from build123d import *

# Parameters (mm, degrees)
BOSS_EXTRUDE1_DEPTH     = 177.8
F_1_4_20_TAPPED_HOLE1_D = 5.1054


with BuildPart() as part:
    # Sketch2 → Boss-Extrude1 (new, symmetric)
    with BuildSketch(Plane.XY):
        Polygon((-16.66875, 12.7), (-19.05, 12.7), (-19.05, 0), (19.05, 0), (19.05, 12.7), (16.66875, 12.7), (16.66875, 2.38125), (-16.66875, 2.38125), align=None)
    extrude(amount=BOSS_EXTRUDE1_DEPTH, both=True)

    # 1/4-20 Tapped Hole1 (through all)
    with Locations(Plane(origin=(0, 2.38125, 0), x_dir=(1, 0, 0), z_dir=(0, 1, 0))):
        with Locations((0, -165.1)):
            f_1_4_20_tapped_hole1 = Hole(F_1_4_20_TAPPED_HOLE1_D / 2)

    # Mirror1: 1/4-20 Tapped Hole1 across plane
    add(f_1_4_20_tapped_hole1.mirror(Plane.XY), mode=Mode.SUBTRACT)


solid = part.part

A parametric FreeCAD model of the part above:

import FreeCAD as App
import Part
import Sketcher
from FreeCAD import Vector
Q = App.Units.Quantity

doc = App.newDocument("Part")
params = doc.addObject("Spreadsheet::Sheet", "Params")
for row, (alias, value) in enumerate([
    ("sketch1_width", "1.5 in"),
    ("sketch1_height", "0.5 in"),
    ("sketch1_width2", "0.09375 in"),
    ("sketch1_height2", "0.40625 in"),
    ("pad1_length", "14 in"),
    ("sketch2_diameter", "0.201 in"),
    ("hole_diameter", "0.201 in"),
], start=1):
    params.set(f"A{row}", alias)
    params.set(f"B{row}", "=" + value)
    params.setAlias(f"B{row}", alias)

body = doc.addObject("PartDesign::Body", "Body")

sketch1 = body.newObject("Sketcher::SketchObject", "Sketch")
sketch1.AttachmentSupport = (doc.getObject("XY_Plane"), [""])
sketch1.MapMode = "FlatFace"
sketch1.addGeometry([
    Part.LineSegment(Vector(-16.7, 12.7, 0), Vector(-19.1, 12.7, 0)),
    Part.LineSegment(Vector(-19.1, 12.7, 0), Vector(-19.1, 0, 0)),
    Part.LineSegment(Vector(-19.1, 0, 0), Vector(19.1, 0, 0)),
    Part.LineSegment(Vector(19.1, 0, 0), Vector(19.1, 12.7, 0)),
    Part.LineSegment(Vector(19.1, 12.7, 0), Vector(16.7, 12.7, 0)),
    Part.LineSegment(Vector(16.7, 12.7, 0), Vector(16.7, 2.4, 0)),
    Part.LineSegment(Vector(16.7, 2.4, 0), Vector(-16.7, 2.4, 0)),
    Part.LineSegment(Vector(-16.7, 2.4, 0), Vector(-16.7, 12.7, 0)),
], False)
sketch1.addConstraint([
    Sketcher.Constraint("Coincident", 0, 2, 1, 1),
    Sketcher.Constraint("Coincident", 1, 2, 2, 1),
    Sketcher.Constraint("Coincident", 2, 2, 3, 1),
    Sketcher.Constraint("Coincident", 3, 2, 4, 1),
    Sketcher.Constraint("Coincident", 4, 2, 5, 1),
    Sketcher.Constraint("Coincident", 5, 2, 6, 1),
    Sketcher.Constraint("Coincident", 6, 2, 7, 1),
    Sketcher.Constraint("Coincident", 7, 2, 0, 1),
    Sketcher.Constraint("Horizontal", 0),
    Sketcher.Constraint("Vertical", 1),
    Sketcher.Constraint("Horizontal", 2),
    Sketcher.Constraint("Vertical", 3),
    Sketcher.Constraint("Horizontal", 4),
    Sketcher.Constraint("Vertical", 5),
    Sketcher.Constraint("Horizontal", 6),
    Sketcher.Constraint("Vertical", 7),
    Sketcher.Constraint("Symmetric", 1, 2, 2, 2, -1, 1),
    Sketcher.Constraint("Symmetric", 4, 2, 7, 2, -2),
    Sketcher.Constraint("DistanceX", 2, 1, 2, 2, Q("1.5 in")),
    Sketcher.Constraint("DistanceY", 1, 2, 1, 1, Q("0.5 in")),
    Sketcher.Constraint("DistanceX", 0, 2, 0, 1, Q("0.09375 in")),
    Sketcher.Constraint("DistanceY", 5, 2, 5, 1, Q("0.40625 in")),
])
sketch1.setExpression("Constraints[18]", "Params.sketch1_width")
sketch1.setExpression("Constraints[19]", "Params.sketch1_height")
sketch1.setExpression("Constraints[20]", "Params.sketch1_width2")
sketch1.setExpression("Constraints[21]", "Params.sketch1_height2")
pad1 = body.newObject("PartDesign::Pad", "Pad")
pad1.Profile = sketch1
pad1.setExpression("Length", "Params.pad1_length")
pad1.Midplane = True

sketch2 = body.newObject("Sketcher::SketchObject", "Sketch001")
sketch2.AttachmentSupport = (doc.getObject("XZ_Plane"), [""])
sketch2.MapMode = "FlatFace"
sketch2.AttachmentOffset = App.Placement(Vector(0, 0, -0.09375 * 25.4), App.Rotation())
sketch2.addGeometry(Part.Circle(Vector(0, 165.1, 0), Vector(0, 0, 1), 2.6), False)
sketch2.addConstraint([
    Sketcher.Constraint("PointOnObject", 0, 3, -2),
    Sketcher.Constraint("Diameter", 0, Q("0.201 in")),
    Sketcher.Constraint("DistanceY", -1, 1, 0, 3, Q("6.5 in")),
])
sketch2.setExpression("Constraints[1]", "Params.sketch2_diameter")
doc.recompute()
hole = body.newObject("PartDesign::Hole", "Hole")
hole.Profile = sketch2
hole.ThreadType = "None"
hole.setExpression("Diameter", "Params.hole_diameter")
hole.DepthType = "ThroughAll"
hole.Reversed = True
doc.recompute()

mirrored = body.newObject("PartDesign::Mirrored", "Mirrored")
mirrored.Originals = [hole]
mirrored.MirrorPlane = (doc.getObject("XY_Plane"), [""])
body.Tip = mirrored

doc.recompute()
